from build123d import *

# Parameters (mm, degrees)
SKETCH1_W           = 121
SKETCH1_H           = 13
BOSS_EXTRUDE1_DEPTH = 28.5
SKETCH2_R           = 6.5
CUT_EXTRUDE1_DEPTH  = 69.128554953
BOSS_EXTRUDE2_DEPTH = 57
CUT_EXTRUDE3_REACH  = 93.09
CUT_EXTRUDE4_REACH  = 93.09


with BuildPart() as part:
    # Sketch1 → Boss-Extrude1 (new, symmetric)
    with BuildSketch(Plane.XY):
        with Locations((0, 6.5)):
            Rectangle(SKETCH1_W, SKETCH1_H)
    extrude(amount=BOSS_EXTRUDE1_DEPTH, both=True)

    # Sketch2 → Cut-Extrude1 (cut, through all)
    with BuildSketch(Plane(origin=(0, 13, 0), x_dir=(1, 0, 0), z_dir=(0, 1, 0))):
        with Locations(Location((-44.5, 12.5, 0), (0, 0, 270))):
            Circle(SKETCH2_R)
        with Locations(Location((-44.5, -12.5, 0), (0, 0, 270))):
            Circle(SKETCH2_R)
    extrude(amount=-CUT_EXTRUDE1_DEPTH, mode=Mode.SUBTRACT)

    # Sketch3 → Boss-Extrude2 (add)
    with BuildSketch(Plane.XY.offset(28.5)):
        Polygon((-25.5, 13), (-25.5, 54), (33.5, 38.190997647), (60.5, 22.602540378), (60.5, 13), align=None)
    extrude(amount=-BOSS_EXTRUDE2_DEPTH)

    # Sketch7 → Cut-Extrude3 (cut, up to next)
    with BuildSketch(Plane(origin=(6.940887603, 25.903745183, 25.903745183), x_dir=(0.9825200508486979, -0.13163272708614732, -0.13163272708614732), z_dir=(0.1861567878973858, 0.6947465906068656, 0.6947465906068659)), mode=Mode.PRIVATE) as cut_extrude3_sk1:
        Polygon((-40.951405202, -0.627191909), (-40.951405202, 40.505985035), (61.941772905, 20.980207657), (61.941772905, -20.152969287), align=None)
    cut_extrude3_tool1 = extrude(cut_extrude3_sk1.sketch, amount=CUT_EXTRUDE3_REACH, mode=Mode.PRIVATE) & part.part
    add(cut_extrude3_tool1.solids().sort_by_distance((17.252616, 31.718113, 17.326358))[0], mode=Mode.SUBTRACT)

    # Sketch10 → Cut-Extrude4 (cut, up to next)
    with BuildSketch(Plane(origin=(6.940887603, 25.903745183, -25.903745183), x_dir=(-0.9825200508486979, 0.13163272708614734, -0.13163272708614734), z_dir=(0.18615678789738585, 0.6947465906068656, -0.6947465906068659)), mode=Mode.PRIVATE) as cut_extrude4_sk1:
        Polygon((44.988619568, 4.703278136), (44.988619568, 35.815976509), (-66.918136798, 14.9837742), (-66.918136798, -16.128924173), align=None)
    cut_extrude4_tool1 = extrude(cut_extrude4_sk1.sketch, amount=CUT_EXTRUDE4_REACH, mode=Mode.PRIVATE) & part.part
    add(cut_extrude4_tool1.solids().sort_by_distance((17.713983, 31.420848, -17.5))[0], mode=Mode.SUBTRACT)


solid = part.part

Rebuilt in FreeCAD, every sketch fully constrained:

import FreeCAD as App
import Part
import Sketcher

V = App.Vector
Q = App.Units.Quantity

doc = App.newDocument("Part")
body = doc.addObject("PartDesign::Body", "Body")

# Sketch on XY plane
sketch1 = body.newObject("Sketcher::SketchObject", "Sketch")
sketch1.AttachmentSupport = (doc.getObject("XY_Plane"), [""])
sketch1.MapMode = "FlatFace"
sketch1.addGeometry([
    Part.LineSegment(V(-60, 13, 0), V(-60, 0, 0)),
    Part.LineSegment(V(-60, 0, 0), V(60, 0, 0)),
    Part.LineSegment(V(60, 0, 0), V(60, 13, 0)),
    Part.LineSegment(V(60, 13, 0), V(-60, 13, 0)),
], False)
sketch1.addConstraint([
    Sketcher.Constraint("Coincident", 0, 2, 1, 1),
    Sketcher.Constraint("Coincident", 1, 2, 2, 1),
    Sketcher.Constraint("Coincident", 2, 2, 3, 1),
    Sketcher.Constraint("Coincident", 3, 2, 0, 1),
    Sketcher.Constraint("Vertical", 0),
    Sketcher.Constraint("Horizontal", 1),
    Sketcher.Constraint("Vertical", 2),
    Sketcher.Constraint("Horizontal", 3),
    Sketcher.Constraint("Symmetric", 0, 2, 1, 2, -1, 1),
    Sketcher.Constraint("DistanceX", 1, 1, 1, 2, 121.0),
    Sketcher.Constraint("DistanceY", 0, 2, 0, 1, 13.0),
])
pad1 = body.newObject("PartDesign::Pad", "Pad")
pad1.Profile = sketch1
pad1.Length = 57
pad1.Midplane = True

# Sketch on XZ plane
sketch2 = body.newObject("Sketcher::SketchObject", "Sketch001")
sketch2.AttachmentSupport = (doc.getObject("XZ_Plane"), [""])
sketch2.MapMode = "FlatFace"
sketch2.AttachmentOffset = App.Placement(V(0, 0, -13), App.Rotation())
sketch2.addGeometry([
    Part.Circle(V(-44, -12, 0), V(0, 0, 1), 6),
    Part.Circle(V(-44, 12, 0), V(0, 0, 1), 6),
], False)
sketch2.addConstraint([
    Sketcher.Constraint("Equal", 0, 1),
    Sketcher.Constraint("Symmetric", 0, 3, 1, 3, -1),
    Sketcher.Constraint("Diameter", 0, 13.0),
    Sketcher.Constraint("DistanceY", 0, 3, 1, 3, 25.0),
    Sketcher.Constraint("DistanceX", 0, 3, -1, 1, 44.5),
])
pocket1 = body.newObject("PartDesign::Pocket", "Pocket")
pocket1.Profile = sketch2
pocket1.Type = "ThroughAll"
pocket1.Reversed = True

# Sketch on XY plane
sketch3 = body.newObject("Sketcher::SketchObject", "Sketch002")
sketch3.AttachmentSupport = (doc.getObject("XY_Plane"), [""])
sketch3.MapMode = "FlatFace"
sketch3.AttachmentOffset = App.Placement(V(0, 0, 28.5), App.Rotation())
sketch3.addGeometry([
    Part.LineSegment(V(-26, 54, 0), V(-26, 13, 0)),  # 0
    Part.LineSegment(V(-26, 13, 0), V(60, 13, 0)),  # 1
    Part.LineSegment(V(60, 13, 0), V(60, 23, 0)),  # 2
    Part.LineSegment(V(60, 23, 0), V(34, 38, 0)),  # 3
    Part.LineSegment(V(34, 38, 0), V(-26, 54, 0)),  # 4
], False)
sketch3.addConstraint([
    Sketcher.Constraint("Coincident", 0, 2, 1, 1),
    Sketcher.Constraint("Coincident", 1, 2, 2, 1),
    Sketcher.Constraint("Coincident", 2, 2, 3, 1),
    Sketcher.Constraint("Coincident", 3, 2, 4, 1),
    Sketcher.Constraint("Coincident", 4, 2, 0, 1),
    Sketcher.Constraint("Vertical", 0),
    Sketcher.Constraint("Horizontal", 1),
    Sketcher.Constraint("Vertical", 2),
    Sketcher.Constraint("DistanceX", 1, 1, 1, 2, 86.0),
    Sketcher.Constraint("DistanceY", 0, 2, 0, 1, 41.0),
    Sketcher.Constraint("Angle", 3, Q("150 deg")),
    Sketcher.Constraint("Angle", 4, Q("165 deg")),
    Sketcher.Constraint("DistanceY", -1, 1, 0, 2, 13.0),
    Sketcher.Constraint("DistanceX", 3, 2, 2, 2, 27.0),
    Sketcher.Constraint("DistanceX", 0, 2, -1, 1, 25.5),
])
pad2 = body.newObject("PartDesign::Pad", "Pad001")
pad2.Profile = sketch3
pad2.Length = 57
pad2.Reversed = True

# Sketch on an angled plane
sketch4 = body.newObject("Sketcher::SketchObject", "Sketch003")
sketch4.Placement = App.Placement(V(6.940888, 25.903745, 25.903745), App.Rotation(V(0.982520051, -0.131632727, -0.131632727), V(0, 0.707106782, -0.707106782), V(0.186156788, 0.694746591, 0.694746591), "ZXY"))
sketch4.addGeometry([
    Part.LineSegment(V(-41, 41, 0), V(-41, -1, 0)),
    Part.LineSegment(V(-41, -1, 0), V(62, -20, 0)),
    Part.LineSegment(V(62, -20, 0), V(62, 21, 0)),
    Part.LineSegment(V(62, 21, 0), V(-41, 41, 0)),
], False)
sketch4.addConstraint([
    Sketcher.Constraint("Coincident", 0, 2, 1, 1),
    Sketcher.Constraint("Coincident", 1, 2, 2, 1),
    Sketcher.Constraint("Coincident", 2, 2, 3, 1),
    Sketcher.Constraint("Coincident", 3, 2, 0, 1),
    Sketcher.Constraint("Vertical", 0),
    Sketcher.Constraint("Vertical", 2),
    Sketcher.Constraint("Parallel", 1, 3),
    Sketcher.Constraint("DistanceY", 0, 2, 2, 2, 21.6074),
    Sketcher.Constraint("Distance", 1, 104.729471),
    Sketcher.Constraint("DistanceY", 0, 2, 0, 1, 41.133177),
    Sketcher.Constraint("DistanceY", 0, 2, -1, 1, 0.627192),
    Sketcher.Constraint("DistanceX", 0, 2, -1, 1, 40.951405),
])
pocket2 = body.newObject("PartDesign::Pocket", "Pocket001")
pocket2.Profile = sketch4
pocket2.Length = 15.284425
pocket2.Reversed = True

# Sketch on an angled plane
sketch5 = body.newObject("Sketcher::SketchObject", "Sketch004")
sketch5.Placement = App.Placement(V(6.940888, 25.903745, -25.903745), App.Rotation(V(-0.982520051, 0.131632727, -0.131632727), V(0, 0.707106782, 0.707106782), V(0.186156788, 0.694746591, -0.694746591), "ZXY"))
sketch5.addGeometry([
    Part.LineSegment(V(45, 5, 0), V(45, 36, 0)),
    Part.LineSegment(V(45, 36, 0), V(-67, 15, 0)),
    Part.LineSegment(V(-67, 15, 0), V(-67, -16, 0)),
    Part.LineSegment(V(-67, -16, 0), V(45, 5, 0)),
], False)
sketch5.addConstraint([
    Sketcher.Constraint("Coincident", 0, 2, 1, 1),
    Sketcher.Constraint("Coincident", 1, 2, 2, 1),
    Sketcher.Constraint("Coincident", 2, 2, 3, 1),
    Sketcher.Constraint("Coincident", 3, 2, 0, 1),
    Sketcher.Constraint("Vertical", 0),
    Sketcher.Constraint("Vertical", 2),
    Sketcher.Constraint("Parallel", 1, 3),
    Sketcher.Constraint("DistanceY", 0, 1, 0, 2, 31.112698),
    Sketcher.Constraint("DistanceY", 2, 2, 0, 2, 51.944901),
    Sketcher.Constraint("Distance", 1, 113.82927),
    Sketcher.Constraint("DistanceX", -1, 1, 0, 2, 44.98862),
    Sketcher.Constraint("DistanceY", -1, 1, 3, 2, 4.703278),
])
pocket3 = body.newObject("PartDesign::Pocket", "Pocket002")
pocket3.Profile = sketch5
pocket3.Type = "UpToFirst"
pocket3.Reversed = True

doc.recompute()
